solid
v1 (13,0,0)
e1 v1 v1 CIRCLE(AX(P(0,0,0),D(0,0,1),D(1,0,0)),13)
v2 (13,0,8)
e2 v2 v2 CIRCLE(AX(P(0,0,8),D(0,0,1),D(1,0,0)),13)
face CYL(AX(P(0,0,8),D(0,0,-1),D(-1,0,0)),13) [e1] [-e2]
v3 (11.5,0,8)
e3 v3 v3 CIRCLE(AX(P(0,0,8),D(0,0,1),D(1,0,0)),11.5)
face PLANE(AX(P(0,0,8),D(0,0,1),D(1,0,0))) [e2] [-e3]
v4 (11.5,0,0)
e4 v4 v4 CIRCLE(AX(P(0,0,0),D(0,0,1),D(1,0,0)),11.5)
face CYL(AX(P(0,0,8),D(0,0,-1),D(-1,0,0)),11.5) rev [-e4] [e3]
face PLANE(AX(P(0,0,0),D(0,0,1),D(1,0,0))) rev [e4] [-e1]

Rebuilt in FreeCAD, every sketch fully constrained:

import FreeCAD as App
import Part
import Sketcher
from FreeCAD import Vector

doc = App.newDocument("Part")
body = doc.addObject("PartDesign::Body", "Body")

# Sketch on XY plane
sketch1 = doc.addObject("Sketcher::SketchObject", "Sketch")
body.addObject(sketch1)
sketch1.AttachmentSupport = (doc.XY_Plane, [""])
sketch1.MapMode = "FlatFace"
sketch1.addGeometry(Part.Circle(Vector(0, 0, 0), Vector(0, 0, 1), 13), False)
sketch1.addGeometry(Part.Circle(Vector(0, 0, 0), Vector(0, 0, 1), 12), False)
sketch1.addConstraint(Sketcher.Constraint("Coincident", 0, 3, -1, 1))
sketch1.addConstraint(Sketcher.Constraint("Coincident", 1, 3, -1, 1))
sketch1.addConstraint(Sketcher.Constraint("Diameter", 0, 26.0))
sketch1.addConstraint(Sketcher.Constraint("Diameter", 1, 23.0))
pad1 = doc.addObject("PartDesign::Pad", "Pad")
body.addObject(pad1)
pad1.Profile = sketch1
pad1.Length = 8

doc.recompute()
